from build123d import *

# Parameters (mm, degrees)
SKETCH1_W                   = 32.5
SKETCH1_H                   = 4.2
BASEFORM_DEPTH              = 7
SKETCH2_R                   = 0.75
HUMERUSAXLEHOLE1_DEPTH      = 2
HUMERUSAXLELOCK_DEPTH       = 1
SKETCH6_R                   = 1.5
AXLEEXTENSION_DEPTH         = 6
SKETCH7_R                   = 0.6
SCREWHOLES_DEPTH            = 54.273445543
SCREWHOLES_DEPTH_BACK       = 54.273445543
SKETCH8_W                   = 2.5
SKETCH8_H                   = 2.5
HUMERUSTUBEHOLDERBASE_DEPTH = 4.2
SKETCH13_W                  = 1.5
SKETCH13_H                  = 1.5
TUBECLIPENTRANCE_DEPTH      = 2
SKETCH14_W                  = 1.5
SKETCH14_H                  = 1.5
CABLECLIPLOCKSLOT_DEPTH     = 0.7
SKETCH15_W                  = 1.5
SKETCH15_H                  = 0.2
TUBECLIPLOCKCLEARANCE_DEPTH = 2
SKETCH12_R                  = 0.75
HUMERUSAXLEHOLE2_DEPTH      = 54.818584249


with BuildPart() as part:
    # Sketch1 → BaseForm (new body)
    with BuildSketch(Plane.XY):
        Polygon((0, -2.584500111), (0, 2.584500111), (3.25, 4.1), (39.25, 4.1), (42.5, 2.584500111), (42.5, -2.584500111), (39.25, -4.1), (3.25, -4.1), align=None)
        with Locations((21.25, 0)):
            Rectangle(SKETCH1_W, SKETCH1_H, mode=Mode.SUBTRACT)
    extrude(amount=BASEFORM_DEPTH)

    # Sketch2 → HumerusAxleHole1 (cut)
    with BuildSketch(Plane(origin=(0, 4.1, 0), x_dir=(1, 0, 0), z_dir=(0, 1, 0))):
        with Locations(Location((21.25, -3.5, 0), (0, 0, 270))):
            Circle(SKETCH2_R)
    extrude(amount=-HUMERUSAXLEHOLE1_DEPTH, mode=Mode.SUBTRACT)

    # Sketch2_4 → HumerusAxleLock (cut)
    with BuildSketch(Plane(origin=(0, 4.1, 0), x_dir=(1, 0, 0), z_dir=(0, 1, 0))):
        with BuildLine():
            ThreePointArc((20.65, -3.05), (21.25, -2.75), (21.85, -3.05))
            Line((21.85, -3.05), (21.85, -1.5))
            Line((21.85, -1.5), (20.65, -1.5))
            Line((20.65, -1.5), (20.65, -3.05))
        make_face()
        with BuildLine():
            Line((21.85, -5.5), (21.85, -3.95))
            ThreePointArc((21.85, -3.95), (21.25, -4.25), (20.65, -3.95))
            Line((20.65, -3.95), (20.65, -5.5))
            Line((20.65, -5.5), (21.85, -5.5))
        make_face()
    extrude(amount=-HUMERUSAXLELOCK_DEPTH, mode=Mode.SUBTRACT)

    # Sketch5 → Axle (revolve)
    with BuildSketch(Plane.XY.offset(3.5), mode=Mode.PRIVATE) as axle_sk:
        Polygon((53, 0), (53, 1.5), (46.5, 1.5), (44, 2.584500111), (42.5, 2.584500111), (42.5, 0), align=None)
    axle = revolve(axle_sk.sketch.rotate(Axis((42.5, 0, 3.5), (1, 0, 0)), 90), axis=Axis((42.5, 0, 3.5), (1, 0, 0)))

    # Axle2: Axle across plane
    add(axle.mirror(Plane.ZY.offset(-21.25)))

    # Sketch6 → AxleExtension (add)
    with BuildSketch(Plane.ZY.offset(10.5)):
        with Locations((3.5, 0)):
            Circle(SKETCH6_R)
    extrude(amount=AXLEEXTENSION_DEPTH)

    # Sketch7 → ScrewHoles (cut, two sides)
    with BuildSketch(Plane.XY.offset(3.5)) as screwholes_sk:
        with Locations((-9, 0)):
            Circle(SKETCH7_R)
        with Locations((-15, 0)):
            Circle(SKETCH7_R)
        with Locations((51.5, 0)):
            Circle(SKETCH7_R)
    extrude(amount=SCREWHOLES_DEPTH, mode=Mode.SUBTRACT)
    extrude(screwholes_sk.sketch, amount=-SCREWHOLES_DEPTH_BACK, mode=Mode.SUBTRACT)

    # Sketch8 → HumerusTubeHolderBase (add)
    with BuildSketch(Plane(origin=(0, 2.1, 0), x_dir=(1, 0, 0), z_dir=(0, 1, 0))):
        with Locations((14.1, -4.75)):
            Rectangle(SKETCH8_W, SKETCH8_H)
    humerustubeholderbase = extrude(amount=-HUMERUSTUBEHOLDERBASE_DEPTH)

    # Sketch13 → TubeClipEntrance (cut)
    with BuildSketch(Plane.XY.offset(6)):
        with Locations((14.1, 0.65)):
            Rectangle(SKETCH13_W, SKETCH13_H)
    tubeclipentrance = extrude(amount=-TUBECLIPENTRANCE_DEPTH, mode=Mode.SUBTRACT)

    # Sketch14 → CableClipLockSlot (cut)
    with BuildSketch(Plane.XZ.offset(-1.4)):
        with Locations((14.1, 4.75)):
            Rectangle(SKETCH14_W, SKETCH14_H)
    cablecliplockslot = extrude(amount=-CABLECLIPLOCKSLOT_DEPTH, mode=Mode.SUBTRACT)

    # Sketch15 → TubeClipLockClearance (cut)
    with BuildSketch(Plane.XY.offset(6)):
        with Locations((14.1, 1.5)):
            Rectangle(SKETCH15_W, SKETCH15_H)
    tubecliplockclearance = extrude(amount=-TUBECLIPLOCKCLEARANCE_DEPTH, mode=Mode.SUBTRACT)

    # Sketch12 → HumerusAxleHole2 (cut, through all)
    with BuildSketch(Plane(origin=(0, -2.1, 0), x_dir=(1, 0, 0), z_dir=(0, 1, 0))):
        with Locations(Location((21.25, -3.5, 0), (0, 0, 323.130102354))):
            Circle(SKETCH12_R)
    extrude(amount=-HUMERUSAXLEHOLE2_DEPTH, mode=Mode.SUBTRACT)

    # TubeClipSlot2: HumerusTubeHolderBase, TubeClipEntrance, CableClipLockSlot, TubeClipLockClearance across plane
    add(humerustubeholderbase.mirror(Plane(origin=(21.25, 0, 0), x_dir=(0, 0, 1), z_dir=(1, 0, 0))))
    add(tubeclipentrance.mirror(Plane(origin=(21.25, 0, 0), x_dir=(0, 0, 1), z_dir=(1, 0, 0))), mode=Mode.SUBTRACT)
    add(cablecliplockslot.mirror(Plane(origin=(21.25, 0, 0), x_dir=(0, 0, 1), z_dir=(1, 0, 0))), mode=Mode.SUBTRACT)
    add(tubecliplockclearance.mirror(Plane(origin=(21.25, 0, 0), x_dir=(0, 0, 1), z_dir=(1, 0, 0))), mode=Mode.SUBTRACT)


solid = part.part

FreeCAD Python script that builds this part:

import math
import FreeCAD as App
import Part
import Sketcher
Q = App.Units.Quantity

doc = App.newDocument("Part")
params = doc.addObject("Spreadsheet::Sheet", "Params")
for row, (alias, value) in enumerate([
    ("sketch1_width", "36 mm"),
    ("sketch1_width2", "32.5 mm"),
    ("sketch1_height", "4.2 mm"),
    ("pad1_length", "7 mm"),
    ("sketch2_diameter", "1.5 mm"),
    ("pocket1_length", "2 mm"),
    ("sketch3_radius", "0.75 mm"),
    ("sketch3_width", "1.2 mm"),
    ("pocket2_length", "1 mm"),
    ("sketch4_width", "6.5 mm"),
    ("sketch4_width2", "1.5 mm"),
    ("sketch4_width3", "10.5 mm"),
    ("revolution_angle", "360 deg"),
    ("sketch5_diameter", "3 mm"),
    ("pad2_length", "6 mm"),
    ("sketch6_diameter", "1.2 mm"),
    ("sketch7_width", "2.5 mm"),
    ("pad3_length", "4.2 mm"),
    ("sketch8_width", "1.5 mm"),
    ("pocket4_length", "2 mm"),
    ("sketch9_width", "1.5 mm"),
    ("pocket5_length", "0.7 mm"),
    ("sketch10_width", "1.5 mm"),
    ("sketch10_height", "0.2 mm"),
    ("pocket6_length", "2 mm"),
    ("sketch11_diameter", "1.5 mm"),
], start=1):
    params.set(f"A{row}", alias)
    params.set(f"B{row}", "=" + value)
    params.setAlias(f"B{row}", alias)

body = doc.addObject("PartDesign::Body", "Body")

# Sketch on XY plane
sketch1 = body.newObject("Sketcher::SketchObject", "Sketch")
sketch1.AttachmentSupport = (doc.getObject("XY_Plane"), [""])
sketch1.MapMode = "FlatFace"
sketch1.addGeometry([
    Part.LineSegment(App.Vector(0, 2.6, 0), App.Vector(0, -2.6, 0)),  # 0
    Part.LineSegment(App.Vector(0, -2.6, 0), App.Vector(3.2, -4.1, 0)),  # 1
    Part.LineSegment(App.Vector(3.2, -4.1, 0), App.Vector(39.2, -4.1, 0)),  # 2
    Part.LineSegment(App.Vector(39.2, -4.1, 0), App.Vector(42.5, -2.6, 0)),  # 3
    Part.LineSegment(App.Vector(42.5, -2.6, 0), App.Vector(42.5, 2.6, 0)),  # 4
    Part.LineSegment(App.Vector(42.5, 2.6, 0), App.Vector(39.2, 4.1, 0)),  # 5
    Part.LineSegment(App.Vector(39.2, 4.1, 0), App.Vector(3.2, 4.1, 0)),  # 6
    Part.LineSegment(App.Vector(3.2, 4.1, 0), App.Vector(0, 2.6, 0)),  # 7
    Part.LineSegment(App.Vector(5, -2.1, 0), App.Vector(5, 2.1, 0)),  # 8
    Part.LineSegment(App.Vector(5, 2.1, 0), App.Vector(37.5, 2.1, 0)),  # 9
    Part.LineSegment(App.Vector(37.5, 2.1, 0), App.Vector(37.5, -2.1, 0)),  # 10
    Part.LineSegment(App.Vector(37.5, -2.1, 0), App.Vector(5, -2.1, 0)),  # 11
], False)
sketch1.addConstraint([
    Sketcher.Constraint("Coincident", 0, 2, 1, 1),
    Sketcher.Constraint("Coincident", 1, 2, 2, 1),
    Sketcher.Constraint("Coincident", 2, 2, 3, 1),
    Sketcher.Constraint("Coincident", 3, 2, 4, 1),
    Sketcher.Constraint("Coincident", 4, 2, 5, 1),
    Sketcher.Constraint("Coincident", 5, 2, 6, 1),
    Sketcher.Constraint("Coincident", 6, 2, 7, 1),
    Sketcher.Constraint("Coincident", 7, 2, 0, 1),
    Sketcher.Constraint("Coincident", 8, 2, 9, 1),
    Sketcher.Constraint("Coincident", 9, 2, 10, 1),
    Sketcher.Constraint("Coincident", 10, 2, 11, 1),
    Sketcher.Constraint("Coincident", 11, 2, 8, 1),
    Sketcher.Constraint("Vertical", 0),
    Sketcher.Constraint("Horizontal", 2),
    Sketcher.Constraint("Vertical", 4),
    Sketcher.Constraint("Horizontal", 6),
    Sketcher.Constraint("Vertical", 8),
    Sketcher.Constraint("Horizontal", 9),
    Sketcher.Constraint("Vertical", 10),
    Sketcher.Constraint("Horizontal", 11),
    Sketcher.Constraint("Symmetric", 0, 2, 7, 2, -1, 1),
    Sketcher.Constraint("Symmetric", 2, 2, 5, 2, -1),
    Sketcher.Constraint("Parallel", 1, 5),
    Sketcher.Constraint("Parallel", 3, 7),
    Sketcher.Constraint("Horizontal", 0, 2, 3, 2),
    Sketcher.Constraint("Horizontal", 4, 2, 7, 2),
    Sketcher.Constraint("DistanceX", 2, 1, 2, 2, 36.0),
    Sketcher.Constraint("Angle", 1, Q("-25 deg")),
    Sketcher.Constraint("DistanceX", 9, 1, 9, 2, 32.5),
    Sketcher.Constraint("DistanceY", 8, 1, 8, 2, 4.2),
    Sketcher.Constraint("DistanceX", -1, 1, 8, 2, 5.0),
    Sketcher.Constraint("DistanceY", 8, 2, 6, 2, 2.0),
    Sketcher.Constraint("DistanceX", 9, 2, 4, 2, 5.0),
    Sketcher.Constraint("DistanceY", 2, 2, 10, 2, 2.0),
])
sketch1.setExpression("Constraints[26]", "Params.sketch1_width")
sketch1.setExpression("Constraints[28]", "Params.sketch1_width2")
sketch1.setExpression("Constraints[29]", "Params.sketch1_height")
pad1 = body.newObject("PartDesign::Pad", "Pad")
pad1.Profile = sketch1
pad1.setExpression("Length", "Params.pad1_length")

# Sketch on XZ plane
sketch2 = body.newObject("Sketcher::SketchObject", "Sketch001")
sketch2.AttachmentSupport = (doc.getObject("XZ_Plane"), [""])
sketch2.MapMode = "FlatFace"
sketch2.AttachmentOffset = App.Placement(App.Vector(0, 0, -4.1), App.Rotation())
sketch2.addGeometry(Part.Circle(App.Vector(21.2, 3.5, 0), App.Vector(0, 0, 1), 0.8), False)
sketch2.addConstraint([
    Sketcher.Constraint("Diameter", 0, 1.5),
    Sketcher.Constraint("DistanceY", -1, 1, 0, 3, 3.5),
    Sketcher.Constraint("DistanceX", -1, 1, 0, 3, 21.25),
])
sketch2.setExpression("Constraints[0]", "Params.sketch2_diameter")
pocket1 = body.newObject("PartDesign::Pocket", "Pocket")
pocket1.Profile = sketch2
pocket1.setExpression("Length", "Params.pocket1_length")
pocket1.Reversed = True

# Sketch on XZ plane
sketch3 = body.newObject("Sketcher::SketchObject", "Sketch002")
sketch3.AttachmentSupport = (doc.getObject("XZ_Plane"), [""])
sketch3.MapMode = "FlatFace"
sketch3.AttachmentOffset = App.Placement(App.Vector(0, 0, -4.1), App.Rotation())
sketch3.addGeometry([
    Part.ArcOfCircle(Part.Circle(App.Vector(21.2, 3.5, 0), App.Vector(0, 0, 1), 0.8), math.radians(-143), math.radians(-37)),  # 0
    Part.LineSegment(App.Vector(21.9, 3, 0), App.Vector(21.9, 1.5, 0)),  # 1
    Part.LineSegment(App.Vector(21.9, 1.5, 0), App.Vector(20.6, 1.5, 0)),  # 2
    Part.LineSegment(App.Vector(20.6, 1.5, 0), App.Vector(20.6, 3, 0)),  # 3
    Part.LineSegment(App.Vector(21.9, 5.5, 0), App.Vector(21.9, 4, 0)),  # 4
    Part.ArcOfCircle(Part.Circle(App.Vector(21.2, 3.5, 0), App.Vector(0, 0, 1), 0.8), math.radians(37), math.radians(143)),  # 5
    Part.LineSegment(App.Vector(20.6, 4, 0), App.Vector(20.6, 5.5, 0)),  # 6
    Part.LineSegment(App.Vector(20.6, 5.5, 0), App.Vector(21.9, 5.5, 0)),  # 7
], False)
sketch3.addConstraint([
    Sketcher.Constraint("Coincident", 0, 2, 1, 1),
    Sketcher.Constraint("Coincident", 1, 2, 2, 1),
    Sketcher.Constraint("Coincident", 2, 2, 3, 1),
    Sketcher.Constraint("Coincident", 3, 2, 0, 1),
    Sketcher.Constraint("Coincident", 4, 2, 5, 1),
    Sketcher.Constraint("Coincident", 5, 2, 6, 1),
    Sketcher.Constraint("Coincident", 6, 2, 7, 1),
    Sketcher.Constraint("Coincident", 7, 2, 4, 1),
    Sketcher.Constraint("Vertical", 1),
    Sketcher.Constraint("Horizontal", 2),
    Sketcher.Constraint("Vertical", 3),
    Sketcher.Constraint("Vertical", 4),
    Sketcher.Constraint("Vertical", 6),
    Sketcher.Constraint("Horizontal", 7),
    Sketcher.Constraint("Coincident", 5, 3, 0, 3),
    Sketcher.Constraint("Equal", 0, 5),
    Sketcher.Constraint("Horizontal", 0, 2, 3, 2),
    Sketcher.Constraint("Horizontal", 4, 2, 5, 2),
    Sketcher.Constraint("Vertical", 1, 2, 4, 2),
    Sketcher.Constraint("Equal", 3, 4),
    Sketcher.Constraint("Radius", 0, 0.75),
    Sketcher.Constraint("DistanceX", 2, 2, 2, 1, 1.2),
    Sketcher.Constraint("DistanceY", 1, 2, 0, 3, 2.0),
    Sketcher.Constraint("DistanceY", -1, 1, 0, 3, 3.5),
    Sketcher.Constraint("DistanceX", -1, 1, 0, 3, 21.25),
])
sketch3.setExpression("Constraints[20]", "Params.sketch3_radius")
sketch3.setExpression("Constraints[21]", "Params.sketch3_width")
pocket2 = body.newObject("PartDesign::Pocket", "Pocket001")
pocket2.Profile = sketch3
pocket2.setExpression("Length", "Params.pocket2_length")
pocket2.Reversed = True

# Sketch on XY plane
sketch4 = body.newObject("Sketcher::SketchObject", "Sketch003")
sketch4.AttachmentSupport = (doc.getObject("XY_Plane"), [""])
sketch4.MapMode = "FlatFace"
sketch4.AttachmentOffset = App.Placement(App.Vector(0, 0, 3.5), App.Rotation())
sketch4.addGeometry([
    Part.LineSegment(App.Vector(53, 0, 0), App.Vector(53, 1.5, 0)),  # 0
    Part.LineSegment(App.Vector(53, 1.5, 0), App.Vector(46.5, 1.5, 0)),  # 1
    Part.LineSegment(App.Vector(46.5, 1.5, 0), App.Vector(44, 2.6, 0)),  # 2
    Part.LineSegment(App.Vector(44, 2.6, 0), App.Vector(42.5, 2.6, 0)),  # 3
    Part.LineSegment(App.Vector(42.5, 2.6, 0), App.Vector(42.5, 0, 0)),  # 4
    Part.LineSegment(App.Vector(42.5, 0, 0), App.Vector(53, 0, 0)),  # 5
], False)
sketch4.addConstraint([
    Sketcher.Constraint("Coincident", 0, 2, 1, 1),
    Sketcher.Constraint("Coincident", 1, 2, 2, 1),
    Sketcher.Constraint("Coincident", 2, 2, 3, 1),
    Sketcher.Constraint("Coincident", 3, 2, 4, 1),
    Sketcher.Constraint("Coincident", 4, 2, 5, 1),
    Sketcher.Constraint("Coincident", 5, 2, 0, 1),
    Sketcher.Constraint("Vertical", 0),
    Sketcher.Constraint("Horizontal", 1),
    Sketcher.Constraint("Horizontal", 3),
    Sketcher.Constraint("Vertical", 4),
    Sketcher.Constraint("Horizontal", 5),
    Sketcher.Constraint("PointOnObject", 4, 2, -1),
    Sketcher.Constraint("Equal", 3, 0),
    Sketcher.Constraint("DistanceX", 1, 2, 1, 1, 6.5),
    Sketcher.Constraint("DistanceX", 3, 2, 3, 1, 1.5),
    Sketcher.Constraint("DistanceX", 5, 1, 5, 2, 10.5),
    Sketcher.Constraint("DistanceX", -1, 1, 0, 2, 53.0),
    Sketcher.Constraint("DistanceY", 4, 2, 4, 1, 2.5845),
])
sketch4.setExpression("Constraints[13]", "Params.sketch4_width")
sketch4.setExpression("Constraints[14]", "Params.sketch4_width2")
sketch4.setExpression("Constraints[15]", "Params.sketch4_width3")
revolution = body.newObject("PartDesign::Revolution", "Revolution")
revolution.Profile = sketch4
revolution.ReferenceAxis = (sketch4, ["H_Axis"])
revolution.setExpression("Angle", "Params.revolution_angle")
doc.recompute()

datumplane = body.newObject("PartDesign::Plane", "DatumPlane")
datumplane.AttachmentSupport = (doc.getObject("YZ_Plane"), [""])
datumplane.MapMode = "FlatFace"
datumplane.AttachmentOffset = App.Placement(App.Vector(0, 0, 21.25), App.Rotation())
mirrored = body.newObject("PartDesign::Mirrored", "Mirrored")
mirrored.Originals = [revolution]
mirrored.MirrorPlane = (datumplane, [""])
body.Tip = mirrored

# Sketch on YZ plane
sketch5 = body.newObject("Sketcher::SketchObject", "Sketch004")
sketch5.AttachmentSupport = (doc.getObject("YZ_Plane"), [""])
sketch5.MapMode = "FlatFace"
sketch5.AttachmentOffset = App.Placement(App.Vector(0, 0, -10.5), App.Rotation())
sketch5.addGeometry(Part.Circle(App.Vector(0, 3.5, 0), App.Vector(0, 0, 1), 1.5), False)
sketch5.addConstraint([
    Sketcher.Constraint("PointOnObject", 0, 3, -2),
    Sketcher.Constraint("Diameter", 0, 3.0),
    Sketcher.Constraint("DistanceY", -1, 1, 0, 3, 3.5),
])
sketch5.setExpression("Constraints[1]", "Params.sketch5_diameter")
pad2 = body.newObject("PartDesign::Pad", "Pad001")
pad2.Profile = sketch5
pad2.setExpression("Length", "Params.pad2_length")
pad2.Reversed = True

# Sketch on XY plane
sketch6 = body.newObject("Sketcher::SketchObject", "Sketch005")
sketch6.AttachmentSupport = (doc.getObject("XY_Plane"), [""])
sketch6.MapMode = "FlatFace"
sketch6.AttachmentOffset = App.Placement(App.Vector(0, 0, 3.5), App.Rotation())
sketch6.addGeometry([
    Part.Circle(App.Vector(-9, 0, 0), App.Vector(0, 0, 1), 0.6),
    Part.Circle(App.Vector(-15, 0, 0), App.Vector(0, 0, 1), 0.6),
    Part.Circle(App.Vector(51.5, 0, 0), App.Vector(0, 0, 1), 0.6),
], False)
sketch6.addConstraint([
    Sketcher.Constraint("Equal", 0, 1),
    Sketcher.Constraint("Equal", 1, 2),
    Sketcher.Constraint("PointOnObject", 0, 3, -1),
    Sketcher.Constraint("PointOnObject", 1, 3, -1),
    Sketcher.Constraint("PointOnObject", 2, 3, -1),
    Sketcher.Constraint("Diameter", 0, 1.2),
    Sketcher.Constraint("DistanceX", 0, 3, -1, 1, 9.0),
    Sketcher.Constraint("DistanceX", 1, 3, -1, 1, 15.0),
    Sketcher.Constraint("DistanceX", -1, 1, 2, 3, 51.5),
])
sketch6.setExpression("Constraints[5]", "Params.sketch6_diameter")
pocket3 = body.newObject("PartDesign::Pocket", "Pocket002")
pocket3.Profile = sketch6
pocket3.Type = "ThroughAll"
pocket3.Midplane = True

# Sketch on XZ plane
sketch7 = body.newObject("Sketcher::SketchObject", "Sketch006")
sketch7.AttachmentSupport = (doc.getObject("XZ_Plane"), [""])
sketch7.MapMode = "FlatFace"
sketch7.AttachmentOffset = App.Placement(App.Vector(0, 0, -2.1), App.Rotation())
sketch7.addGeometry([
    Part.LineSegment(App.Vector(12.8, 3.5, 0), App.Vector(12.8, 6, 0)),
    Part.LineSegment(App.Vector(12.8, 6, 0), App.Vector(15.3, 6, 0)),
    Part.LineSegment(App.Vector(15.3, 6, 0), App.Vector(15.3, 3.5, 0)),
    Part.LineSegment(App.Vector(15.3, 3.5, 0), App.Vector(12.8, 3.5, 0)),
], False)
sketch7.addConstraint([
    Sketcher.Constraint("Coincident", 0, 2, 1, 1),
    Sketcher.Constraint("Coincident", 1, 2, 2, 1),
    Sketcher.Constraint("Coincident", 2, 2, 3, 1),
    Sketcher.Constraint("Coincident", 3, 2, 0, 1),
    Sketcher.Constraint("Vertical", 0),
    Sketcher.Constraint("Horizontal", 1),
    Sketcher.Constraint("Vertical", 2),
    Sketcher.Constraint("Horizontal", 3),
    Sketcher.Constraint("Equal", 3, 0),
    Sketcher.Constraint("DistanceX", 1, 1, 1, 2, 2.5),
    Sketcher.Constraint("DistanceY", -1, 1, 0, 2, 6.0),
    Sketcher.Constraint("DistanceX", -1, 1, 0, 2, 12.85),
])
sketch7.setExpression("Constraints[9]", "Params.sketch7_width")
pad3 = body.newObject("PartDesign::Pad", "Pad002")
pad3.Profile = sketch7
pad3.setExpression("Length", "Params.pad3_length")

# Sketch on XY plane
sketch8 = body.newObject("Sketcher::SketchObject", "Sketch007")
sketch8.AttachmentSupport = (doc.getObject("XY_Plane"), [""])
sketch8.MapMode = "FlatFace"
sketch8.AttachmentOffset = App.Placement(App.Vector(0, 0, 6), App.Rotation())
sketch8.addGeometry([
    Part.LineSegment(App.Vector(13.3, 1.4, 0), App.Vector(13.3, -0.1, 0)),
    Part.LineSegment(App.Vector(13.3, -0.1, 0), App.Vector(14.8, -0.1, 0)),
    Part.LineSegment(App.Vector(14.8, -0.1, 0), App.Vector(14.8, 1.4, 0)),
    Part.LineSegment(App.Vector(14.8, 1.4, 0), App.Vector(13.3, 1.4, 0)),
], False)
sketch8.addConstraint([
    Sketcher.Constraint("Coincident", 0, 2, 1, 1),
    Sketcher.Constraint("Coincident", 1, 2, 2, 1),
    Sketcher.Constraint("Coincident", 2, 2, 3, 1),
    Sketcher.Constraint("Coincident", 3, 2, 0, 1),
    Sketcher.Constraint("Vertical", 0),
    Sketcher.Constraint("Horizontal", 1),
    Sketcher.Constraint("Vertical", 2),
    Sketcher.Constraint("Horizontal", 3),
    Sketcher.Constraint("Equal", 3, 0),
    Sketcher.Constraint("DistanceX", 1, 1, 1, 2, 1.5),
    Sketcher.Constraint("DistanceY", 0, 2, -1, 1, 0.1),
    Sketcher.Constraint("DistanceX", -1, 1, 0, 2, 13.35),
])
sketch8.setExpression("Constraints[9]", "Params.sketch8_width")
pocket4 = body.newObject("PartDesign::Pocket", "Pocket003")
pocket4.Profile = sketch8
pocket4.setExpression("Length", "Params.pocket4_length")

# Sketch on XZ plane
sketch9 = body.newObject("Sketcher::SketchObject", "Sketch008")
sketch9.AttachmentSupport = (doc.getObject("XZ_Plane"), [""])
sketch9.MapMode = "FlatFace"
sketch9.AttachmentOffset = App.Placement(App.Vector(0, 0, -1.4), App.Rotation())
sketch9.addGeometry([
    Part.LineSegment(App.Vector(13.3, 5.5, 0), App.Vector(13.3, 4, 0)),
    Part.LineSegment(App.Vector(13.3, 4, 0), App.Vector(14.8, 4, 0)),
    Part.LineSegment(App.Vector(14.8, 4, 0), App.Vector(14.8, 5.5, 0)),
    Part.LineSegment(App.Vector(14.8, 5.5, 0), App.Vector(13.3, 5.5, 0)),
], False)
sketch9.addConstraint([
    Sketcher.Constraint("Coincident", 0, 2, 1, 1),
    Sketcher.Constraint("Coincident", 1, 2, 2, 1),
    Sketcher.Constraint("Coincident", 2, 2, 3, 1),
    Sketcher.Constraint("Coincident", 3, 2, 0, 1),
    Sketcher.Constraint("Vertical", 0),
    Sketcher.Constraint("Horizontal", 1),
    Sketcher.Constraint("Vertical", 2),
    Sketcher.Constraint("Horizontal", 3),
    Sketcher.Constraint("Equal", 3, 0),
    Sketcher.Constraint("DistanceX", 1, 1, 1, 2, 1.5),
    Sketcher.Constraint("DistanceY", -1, 1, 0, 2, 4.0),
    Sketcher.Constraint("DistanceX", -1, 1, 0, 2, 13.35),
])
sketch9.setExpression("Constraints[9]", "Params.sketch9_width")
pocket5 = body.newObject("PartDesign::Pocket", "Pocket004")
pocket5.Profile = sketch9
pocket5.setExpression("Length", "Params.pocket5_length")

# Sketch on XY plane
sketch10 = body.newObject("Sketcher::SketchObject", "Sketch009")
sketch10.AttachmentSupport = (doc.getObject("XY_Plane"), [""])
sketch10.MapMode = "FlatFace"
sketch10.AttachmentOffset = App.Placement(App.Vector(0, 0, 6), App.Rotation())
sketch10.addGeometry([
    Part.LineSegment(App.Vector(13.35, 1.6, 0), App.Vector(13.35, 1.4, 0)),
    Part.LineSegment(App.Vector(13.35, 1.4, 0), App.Vector(14.85, 1.4, 0)),
    Part.LineSegment(App.Vector(14.85, 1.4, 0), App.Vector(14.85, 1.6, 0)),
    Part.LineSegment(App.Vector(14.85, 1.6, 0), App.Vector(13.35, 1.6, 0)),
], False)
sketch10.addConstraint([
    Sketcher.Constraint("Coincident", 0, 2, 1, 1),
    Sketcher.Constraint("Coincident", 1, 2, 2, 1),
    Sketcher.Constraint("Coincident", 2, 2, 3, 1),
    Sketcher.Constraint("Coincident", 3, 2, 0, 1),
    Sketcher.Constraint("Vertical", 0),
    Sketcher.Constraint("Horizontal", 1),
    Sketcher.Constraint("Vertical", 2),
    Sketcher.Constraint("Horizontal", 3),
    Sketcher.Constraint("DistanceX", 1, 1, 1, 2, 1.5),
    Sketcher.Constraint("DistanceY", 0, 2, 0, 1, 0.2),
    Sketcher.Constraint("DistanceY", -1, 1, 0, 2, 1.4),
    Sketcher.Constraint("DistanceX", -1, 1, 0, 2, 13.35),
])
sketch10.setExpression("Constraints[8]", "Params.sketch10_width")
sketch10.setExpression("Constraints[9]", "Params.sketch10_height")
pocket6 = body.newObject("PartDesign::Pocket", "Pocket005")
pocket6.Profile = sketch10
pocket6.setExpression("Length", "Params.pocket6_length")

# Sketch on XZ plane
sketch11 = body.newObject("Sketcher::SketchObject", "Sketch010")
sketch11.AttachmentSupport = (doc.getObject("XZ_Plane"), [""])
sketch11.MapMode = "FlatFace"
sketch11.AttachmentOffset = App.Placement(App.Vector(0, 0, 2.1), App.Rotation())
sketch11.addGeometry(Part.Circle(App.Vector(21.2, 3.5, 0), App.Vector(0, 0, 1), 0.8), False)
sketch11.addConstraint([
    Sketcher.Constraint("Diameter", 0, 1.5),
    Sketcher.Constraint("DistanceY", -1, 1, 0, 3, 3.5),
    Sketcher.Constraint("DistanceX", -1, 1, 0, 3, 21.25),
])
sketch11.setExpression("Constraints[0]", "Params.sketch11_diameter")
pocket7 = body.newObject("PartDesign::Pocket", "Pocket006")
pocket7.Profile = sketch11
pocket7.Type = "ThroughAll"
pocket7.Reversed = True
doc.recompute()

datumplane2 = body.newObject("PartDesign::Plane", "DatumPlane001")
datumplane2.AttachmentSupport = (doc.getObject("YZ_Plane"), [""])
datumplane2.MapMode = "FlatFace"
datumplane2.AttachmentOffset = App.Placement(App.Vector(0, 0, 21.25), App.Rotation())
mirrored2 = body.newObject("PartDesign::Mirrored", "Mirrored001")
mirrored2.Originals = [pad3, pocket4, pocket5, pocket6]
mirrored2.MirrorPlane = (datumplane2, [""])
body.Tip = mirrored2

doc.recompute()
